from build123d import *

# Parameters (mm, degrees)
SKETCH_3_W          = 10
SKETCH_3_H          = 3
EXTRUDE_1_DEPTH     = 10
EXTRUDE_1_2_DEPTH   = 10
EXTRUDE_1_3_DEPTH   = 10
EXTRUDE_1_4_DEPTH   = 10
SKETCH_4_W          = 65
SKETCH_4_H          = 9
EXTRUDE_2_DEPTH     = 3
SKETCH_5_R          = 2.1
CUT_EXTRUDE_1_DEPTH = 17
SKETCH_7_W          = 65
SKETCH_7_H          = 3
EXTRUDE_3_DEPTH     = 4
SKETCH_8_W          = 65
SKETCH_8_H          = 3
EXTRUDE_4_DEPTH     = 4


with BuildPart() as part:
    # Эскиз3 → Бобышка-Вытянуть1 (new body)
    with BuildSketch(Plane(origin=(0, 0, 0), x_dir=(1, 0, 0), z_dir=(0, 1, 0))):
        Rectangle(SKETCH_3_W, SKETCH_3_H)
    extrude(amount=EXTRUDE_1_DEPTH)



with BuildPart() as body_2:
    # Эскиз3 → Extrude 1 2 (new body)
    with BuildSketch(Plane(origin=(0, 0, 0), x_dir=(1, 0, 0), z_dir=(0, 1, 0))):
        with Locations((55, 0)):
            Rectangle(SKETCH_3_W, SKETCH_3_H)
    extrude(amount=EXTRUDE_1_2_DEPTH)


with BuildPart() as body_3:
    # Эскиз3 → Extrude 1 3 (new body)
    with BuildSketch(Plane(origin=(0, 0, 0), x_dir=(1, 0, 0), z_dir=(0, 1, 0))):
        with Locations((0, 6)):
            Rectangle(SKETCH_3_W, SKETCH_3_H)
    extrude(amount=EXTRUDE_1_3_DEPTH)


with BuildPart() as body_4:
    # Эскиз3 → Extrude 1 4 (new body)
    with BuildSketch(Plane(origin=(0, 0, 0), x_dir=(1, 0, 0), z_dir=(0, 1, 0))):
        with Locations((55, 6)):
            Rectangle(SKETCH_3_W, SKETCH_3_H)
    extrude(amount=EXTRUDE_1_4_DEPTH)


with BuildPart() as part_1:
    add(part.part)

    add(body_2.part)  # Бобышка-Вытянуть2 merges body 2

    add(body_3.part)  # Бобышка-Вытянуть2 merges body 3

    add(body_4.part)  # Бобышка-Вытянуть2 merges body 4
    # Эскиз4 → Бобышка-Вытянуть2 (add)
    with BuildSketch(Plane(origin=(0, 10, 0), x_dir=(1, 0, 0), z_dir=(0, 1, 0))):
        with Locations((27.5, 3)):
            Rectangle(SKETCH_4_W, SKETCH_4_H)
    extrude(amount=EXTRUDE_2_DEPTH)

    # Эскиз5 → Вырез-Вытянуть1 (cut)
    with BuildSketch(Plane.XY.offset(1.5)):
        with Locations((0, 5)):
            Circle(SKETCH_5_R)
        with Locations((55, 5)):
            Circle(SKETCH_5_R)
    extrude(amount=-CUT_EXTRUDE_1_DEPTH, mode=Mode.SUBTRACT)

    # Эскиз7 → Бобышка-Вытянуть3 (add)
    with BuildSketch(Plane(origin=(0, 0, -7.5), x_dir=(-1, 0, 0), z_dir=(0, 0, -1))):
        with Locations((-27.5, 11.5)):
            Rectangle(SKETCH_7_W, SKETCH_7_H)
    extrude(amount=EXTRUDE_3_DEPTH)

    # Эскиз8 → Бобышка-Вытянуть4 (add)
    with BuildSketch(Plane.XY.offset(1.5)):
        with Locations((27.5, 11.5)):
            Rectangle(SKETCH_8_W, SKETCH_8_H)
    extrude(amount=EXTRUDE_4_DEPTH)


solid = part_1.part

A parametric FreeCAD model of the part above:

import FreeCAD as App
import Part
import Sketcher

doc = App.newDocument("Part")
body = doc.addObject("PartDesign::Body", "Body")

# Sketch on XZ plane
sketch1 = body.newObject("Sketcher::SketchObject", "Sketch")
sketch1.AttachmentSupport = (doc.getObject("XZ_Plane"), [""])
sketch1.MapMode = "FlatFace"
sketch1.addGeometry(Part.LineSegment(App.Vector(-5, -1.5, 0), App.Vector(-5, 1.5, 0)), False)
sketch1.addGeometry(Part.LineSegment(App.Vector(-5, 1.5, 0), App.Vector(5, 1.5, 0)), False)
sketch1.addGeometry(Part.LineSegment(App.Vector(5, 1.5, 0), App.Vector(5, -1.5, 0)), False)
sketch1.addGeometry(Part.LineSegment(App.Vector(5, -1.5, 0), App.Vector(-5, -1.5, 0)), False)
sketch1.addConstraint(Sketcher.Constraint("Coincident", 0, 2, 1, 1))
sketch1.addConstraint(Sketcher.Constraint("Coincident", 1, 2, 2, 1))
sketch1.addConstraint(Sketcher.Constraint("Coincident", 2, 2, 3, 1))
sketch1.addConstraint(Sketcher.Constraint("Coincident", 3, 2, 0, 1))
sketch1.addConstraint(Sketcher.Constraint("Vertical", 0))
sketch1.addConstraint(Sketcher.Constraint("Horizontal", 1))
sketch1.addConstraint(Sketcher.Constraint("Vertical", 2))
sketch1.addConstraint(Sketcher.Constraint("Horizontal", 3))
sketch1.addConstraint(Sketcher.Constraint("Symmetric", 0, 2, 2, 2, -1, 1))
sketch1.addConstraint(Sketcher.Constraint("DistanceX", 1, 1, 1, 2, 10.0))
sketch1.addConstraint(Sketcher.Constraint("DistanceY", 0, 1, 0, 2, 3.0))
pad1 = body.newObject("PartDesign::Pad", "Pad")
pad1.Profile = sketch1
pad1.Length = 10
pad1.Reversed = True
body2 = doc.addObject("PartDesign::Body", "Body001")

# Sketch on XZ plane
sketch2 = body2.newObject("Sketcher::SketchObject", "Sketch001")
sketch2.AttachmentSupport = (doc.getObject("XZ_Plane001"), [""])
sketch2.MapMode = "FlatFace"
sketch2.addGeometry(Part.LineSegment(App.Vector(50, -1.5, 0), App.Vector(50, 1.5, 0)), False)
sketch2.addGeometry(Part.LineSegment(App.Vector(50, 1.5, 0), App.Vector(60, 1.5, 0)), False)
sketch2.addGeometry(Part.LineSegment(App.Vector(60, 1.5, 0), App.Vector(60, -1.5, 0)), False)
sketch2.addGeometry(Part.LineSegment(App.Vector(60, -1.5, 0), App.Vector(50, -1.5, 0)), False)
sketch2.addConstraint(Sketcher.Constraint("Coincident", 0, 2, 1, 1))
sketch2.addConstraint(Sketcher.Constraint("Coincident", 1, 2, 2, 1))
sketch2.addConstraint(Sketcher.Constraint("Coincident", 2, 2, 3, 1))
sketch2.addConstraint(Sketcher.Constraint("Coincident", 3, 2, 0, 1))
sketch2.addConstraint(Sketcher.Constraint("Vertical", 0))
sketch2.addConstraint(Sketcher.Constraint("Horizontal", 1))
sketch2.addConstraint(Sketcher.Constraint("Vertical", 2))
sketch2.addConstraint(Sketcher.Constraint("Horizontal", 3))
sketch2.addConstraint(Sketcher.Constraint("DistanceX", 1, 1, 1, 2, 10.0))
sketch2.addConstraint(Sketcher.Constraint("DistanceY", 0, 1, 0, 2, 3.0))
sketch2.addConstraint(Sketcher.Constraint("DistanceX", -1, 1, 0, 2, 50.0))
sketch2.addConstraint(Sketcher.Constraint("DistanceY", -1, 1, 0, 2, 1.5))
pad2 = body2.newObject("PartDesign::Pad", "Pad001")
pad2.Profile = sketch2
pad2.Length = 10
pad2.Reversed = True
body3 = doc.addObject("PartDesign::Body", "Body002")

# Sketch on XZ plane
sketch3 = body3.newObject("Sketcher::SketchObject", "Sketch002")
sketch3.AttachmentSupport = (doc.getObject("XZ_Plane002"), [""])
sketch3.MapMode = "FlatFace"
sketch3.addGeometry(Part.LineSegment(App.Vector(-5, -7.5, 0), App.Vector(-5, -4.5, 0)), False)
sketch3.addGeometry(Part.LineSegment(App.Vector(-5, -4.5, 0), App.Vector(5, -4.5, 0)), False)
sketch3.addGeometry(Part.LineSegment(App.Vector(5, -4.5, 0), App.Vector(5, -7.5, 0)), False)
sketch3.addGeometry(Part.LineSegment(App.Vector(5, -7.5, 0), App.Vector(-5, -7.5, 0)), False)
sketch3.addConstraint(Sketcher.Constraint("Coincident", 0, 2, 1, 1))
sketch3.addConstraint(Sketcher.Constraint("Coincident", 1, 2, 2, 1))
sketch3.addConstraint(Sketcher.Constraint("Coincident", 2, 2, 3, 1))
sketch3.addConstraint(Sketcher.Constraint("Coincident", 3, 2, 0, 1))
sketch3.addConstraint(Sketcher.Constraint("Vertical", 0))
sketch3.addConstraint(Sketcher.Constraint("Horizontal", 1))
sketch3.addConstraint(Sketcher.Constraint("Vertical", 2))
sketch3.addConstraint(Sketcher.Constraint("Horizontal", 3))
sketch3.addConstraint(Sketcher.Constraint("DistanceX", 1, 1, 1, 2, 10.0))
sketch3.addConstraint(Sketcher.Constraint("DistanceY", 0, 1, 0, 2, 3.0))
sketch3.addConstraint(Sketcher.Constraint("DistanceX", 0, 2, -1, 1, 5.0))
sketch3.addConstraint(Sketcher.Constraint("DistanceY", 0, 2, -1, 1, 4.5))
pad3 = body3.newObject("PartDesign::Pad", "Pad002")
pad3.Profile = sketch3
pad3.Length = 10
pad3.Reversed = True
body4 = doc.addObject("PartDesign::Body", "Body003")

# Sketch on XZ plane
sketch4 = body4.newObject("Sketcher::SketchObject", "Sketch003")
sketch4.AttachmentSupport = (doc.getObject("XZ_Plane003"), [""])
sketch4.MapMode = "FlatFace"
sketch4.addGeometry(Part.LineSegment(App.Vector(50, -7.5, 0), App.Vector(50, -4.5, 0)), False)
sketch4.addGeometry(Part.LineSegment(App.Vector(50, -4.5, 0), App.Vector(60, -4.5, 0)), False)
sketch4.addGeometry(Part.LineSegment(App.Vector(60, -4.5, 0), App.Vector(60, -7.5, 0)), False)
sketch4.addGeometry(Part.LineSegment(App.Vector(60, -7.5, 0), App.Vector(50, -7.5, 0)), False)
sketch4.addConstraint(Sketcher.Constraint("Coincident", 0, 2, 1, 1))
sketch4.addConstraint(Sketcher.Constraint("Coincident", 1, 2, 2, 1))
sketch4.addConstraint(Sketcher.Constraint("Coincident", 2, 2, 3, 1))
sketch4.addConstraint(Sketcher.Constraint("Coincident", 3, 2, 0, 1))
sketch4.addConstraint(Sketcher.Constraint("Vertical", 0))
sketch4.addConstraint(Sketcher.Constraint("Horizontal", 1))
sketch4.addConstraint(Sketcher.Constraint("Vertical", 2))
sketch4.addConstraint(Sketcher.Constraint("Horizontal", 3))
sketch4.addConstraint(Sketcher.Constraint("DistanceX", 1, 1, 1, 2, 10.0))
sketch4.addConstraint(Sketcher.Constraint("DistanceY", 0, 1, 0, 2, 3.0))
sketch4.addConstraint(Sketcher.Constraint("DistanceX", -1, 1, 0, 2, 50.0))
sketch4.addConstraint(Sketcher.Constraint("DistanceY", 0, 2, -1, 1, 4.5))
pad4 = body4.newObject("PartDesign::Pad", "Pad003")
pad4.Profile = sketch4
pad4.Length = 10
pad4.Reversed = True
body.AllowCompound = True
doc.recompute()

boolean = body.newObject("PartDesign::Boolean", "Boolean")
boolean.Type = "Fuse"
boolean.addObjects([body2])
doc.recompute()

boolean2 = body.newObject("PartDesign::Boolean", "Boolean001")
boolean2.Type = "Fuse"
boolean2.addObjects([body3])
doc.recompute()

boolean3 = body.newObject("PartDesign::Boolean", "Boolean002")
boolean3.Type = "Fuse"
boolean3.addObjects([body4])

# Sketch on XZ plane
sketch5 = body.newObject("Sketcher::SketchObject", "Sketch004")
sketch5.AttachmentSupport = (doc.getObject("XZ_Plane"), [""])
sketch5.MapMode = "FlatFace"
sketch5.AttachmentOffset = App.Placement(App.Vector(0, 0, -10), App.Rotation())
sketch5.addGeometry(Part.LineSegment(App.Vector(-5, -7.5, 0), App.Vector(-5, 1.5, 0)), False)
sketch5.addGeometry(Part.LineSegment(App.Vector(-5, 1.5, 0), App.Vector(60, 1.5, 0)), False)
sketch5.addGeometry(Part.LineSegment(App.Vector(60, 1.5, 0), App.Vector(60, -7.5, 0)), False)
sketch5.addGeometry(Part.LineSegment(App.Vector(60, -7.5, 0), App.Vector(-5, -7.5, 0)), False)
sketch5.addConstraint(Sketcher.Constraint("Coincident", 0, 2, 1, 1))
sketch5.addConstraint(Sketcher.Constraint("Coincident", 1, 2, 2, 1))
sketch5.addConstraint(Sketcher.Constraint("Coincident", 2, 2, 3, 1))
sketch5.addConstraint(Sketcher.Constraint("Coincident", 3, 2, 0, 1))
sketch5.addConstraint(Sketcher.Constraint("Vertical", 0))
sketch5.addConstraint(Sketcher.Constraint("Horizontal", 1))
sketch5.addConstraint(Sketcher.Constraint("Vertical", 2))
sketch5.addConstraint(Sketcher.Constraint("Horizontal", 3))
sketch5.addConstraint(Sketcher.Constraint("DistanceX", 1, 1, 1, 2, 65.0))
sketch5.addConstraint(Sketcher.Constraint("DistanceY", 0, 1, 0, 2, 9.0))
sketch5.addConstraint(Sketcher.Constraint("DistanceX", 0, 2, -1, 1, 5.0))
sketch5.addConstraint(Sketcher.Constraint("DistanceY", -1, 1, 0, 2, 1.5))
pad5 = body.newObject("PartDesign::Pad", "Pad004")
pad5.Profile = sketch5
pad5.Length = 3
pad5.Reversed = True

# Sketch on XY plane
sketch6 = body.newObject("Sketcher::SketchObject", "Sketch005")
sketch6.AttachmentSupport = (doc.getObject("XY_Plane"), [""])
sketch6.MapMode = "FlatFace"
sketch6.AttachmentOffset = App.Placement(App.Vector(0, 0, 1.5), App.Rotation())
sketch6.addGeometry(Part.Circle(App.Vector(0, 5, 0), App.Vector(0, 0, 1), 2.1), False)
sketch6.addGeometry(Part.Circle(App.Vector(55, 5, 0), App.Vector(0, 0, 1), 2.1), False)
sketch6.addConstraint(Sketcher.Constraint("Equal", 0, 1))
sketch6.addConstraint(Sketcher.Constraint("PointOnObject", 0, 3, -2))
sketch6.addConstraint(Sketcher.Constraint("Horizontal", 0, 3, 1, 3))
sketch6.addConstraint(Sketcher.Constraint("Diameter", 0, 4.2))
sketch6.addConstraint(Sketcher.Constraint("DistanceY", -1, 1, 0, 3, 5.0))
sketch6.addConstraint(Sketcher.Constraint("DistanceX", -1, 1, 1, 3, 55.0))
pocket1 = body.newObject("PartDesign::Pocket", "Pocket")
pocket1.Profile = sketch6
pocket1.Length = 17

# Sketch on XY plane
sketch7 = body.newObject("Sketcher::SketchObject", "Sketch006")
sketch7.AttachmentSupport = (doc.getObject("XY_Plane"), [""])
sketch7.MapMode = "FlatFace"
sketch7.AttachmentOffset = App.Placement(App.Vector(0, 0, -7.5), App.Rotation())
sketch7.addGeometry(Part.LineSegment(App.Vector(60, 13, 0), App.Vector(60, 10, 0)), False)
sketch7.addGeometry(Part.LineSegment(App.Vector(60, 10, 0), App.Vector(-5, 10, 0)), False)
sketch7.addGeometry(Part.LineSegment(App.Vector(-5, 10, 0), App.Vector(-5, 13, 0)), False)
sketch7.addGeometry(Part.LineSegment(App.Vector(-5, 13, 0), App.Vector(60, 13, 0)), False)
sketch7.addConstraint(Sketcher.Constraint("Coincident", 0, 2, 1, 1))
sketch7.addConstraint(Sketcher.Constraint("Coincident", 1, 2, 2, 1))
sketch7.addConstraint(Sketcher.Constraint("Coincident", 2, 2, 3, 1))
sketch7.addConstraint(Sketcher.Constraint("Coincident", 3, 2, 0, 1))
sketch7.addConstraint(Sketcher.Constraint("Vertical", 0))
sketch7.addConstraint(Sketcher.Constraint("Horizontal", 1))
sketch7.addConstraint(Sketcher.Constraint("Vertical", 2))
sketch7.addConstraint(Sketcher.Constraint("Horizontal", 3))
sketch7.addConstraint(Sketcher.Constraint("DistanceX", 1, 2, 1, 1, 65.0))
sketch7.addConstraint(Sketcher.Constraint("DistanceY", 0, 2, 0, 1, 3.0))
sketch7.addConstraint(Sketcher.Constraint("DistanceX", -1, 1, 0, 2, 60.0))
sketch7.addConstraint(Sketcher.Constraint("DistanceY", -1, 1, 0, 2, 10.0))
pad6 = body.newObject("PartDesign::Pad", "Pad005")
pad6.Profile = sketch7
pad6.Length = 4
pad6.Reversed = True

# Sketch on XY plane
sketch8 = body.newObject("Sketcher::SketchObject", "Sketch007")
sketch8.AttachmentSupport = (doc.getObject("XY_Plane"), [""])
sketch8.MapMode = "FlatFace"
sketch8.AttachmentOffset = App.Placement(App.Vector(0, 0, 1.5), App.Rotation())
sketch8.addGeometry(Part.LineSegment(App.Vector(-5, 13, 0), App.Vector(-5, 10, 0)), False)
sketch8.addGeometry(Part.LineSegment(App.Vector(-5, 10, 0), App.Vector(60, 10, 0)), False)
sketch8.addGeometry(Part.LineSegment(App.Vector(60, 10, 0), App.Vector(60, 13, 0)), False)
sketch8.addGeometry(Part.LineSegment(App.Vector(60, 13, 0), App.Vector(-5, 13, 0)), False)
sketch8.addConstraint(Sketcher.Constraint("Coincident", 0, 2, 1, 1))
sketch8.addConstraint(Sketcher.Constraint("Coincident", 1, 2, 2, 1))
sketch8.addConstraint(Sketcher.Constraint("Coincident", 2, 2, 3, 1))
sketch8.addConstraint(Sketcher.Constraint("Coincident", 3, 2, 0, 1))
sketch8.addConstraint(Sketcher.Constraint("Vertical", 0))
sketch8.addConstraint(Sketcher.Constraint("Horizontal", 1))
sketch8.addConstraint(Sketcher.Constraint("Vertical", 2))
sketch8.addConstraint(Sketcher.Constraint("Horizontal", 3))
sketch8.addConstraint(Sketcher.Constraint("DistanceX", 1, 1, 1, 2, 65.0))
sketch8.addConstraint(Sketcher.Constraint("DistanceY", 0, 2, 0, 1, 3.0))
sketch8.addConstraint(Sketcher.Constraint("DistanceX", 0, 2, -1, 1, 5.0))
sketch8.addConstraint(Sketcher.Constraint("DistanceY", -1, 1, 0, 2, 10.0))
pad7 = body.newObject("PartDesign::Pad", "Pad006")
pad7.Profile = sketch8
pad7.Length = 4

doc.recompute()
